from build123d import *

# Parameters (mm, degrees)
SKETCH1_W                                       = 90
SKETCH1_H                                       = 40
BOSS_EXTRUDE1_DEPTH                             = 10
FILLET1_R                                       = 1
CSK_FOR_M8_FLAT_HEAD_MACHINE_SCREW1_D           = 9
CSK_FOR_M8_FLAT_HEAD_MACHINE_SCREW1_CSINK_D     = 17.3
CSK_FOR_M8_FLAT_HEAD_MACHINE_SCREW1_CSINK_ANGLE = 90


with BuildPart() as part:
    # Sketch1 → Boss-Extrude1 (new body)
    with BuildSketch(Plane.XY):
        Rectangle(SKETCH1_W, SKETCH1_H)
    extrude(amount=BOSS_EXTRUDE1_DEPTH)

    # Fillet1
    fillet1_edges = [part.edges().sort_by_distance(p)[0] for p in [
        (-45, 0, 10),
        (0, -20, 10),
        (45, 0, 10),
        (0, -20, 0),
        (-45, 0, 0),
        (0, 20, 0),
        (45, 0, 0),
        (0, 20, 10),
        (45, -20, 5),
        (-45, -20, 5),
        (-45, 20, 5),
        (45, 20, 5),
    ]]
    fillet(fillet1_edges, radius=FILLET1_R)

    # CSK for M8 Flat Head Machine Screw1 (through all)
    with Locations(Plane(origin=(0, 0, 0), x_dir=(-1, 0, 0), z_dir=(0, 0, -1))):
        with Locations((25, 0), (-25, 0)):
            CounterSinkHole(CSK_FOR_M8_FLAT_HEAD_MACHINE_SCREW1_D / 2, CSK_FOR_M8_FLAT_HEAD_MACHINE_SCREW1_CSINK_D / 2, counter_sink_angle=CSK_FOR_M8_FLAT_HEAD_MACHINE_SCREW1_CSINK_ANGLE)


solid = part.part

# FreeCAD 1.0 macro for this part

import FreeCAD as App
import Part
import Sketcher

V = App.Vector
Q = App.Units.Quantity


def add_polygon(sketch, points):
    """Adds a closed chain of lines whose ends are joined by coincident constraints."""
    first, n = sketch.GeometryCount, len(points)
    for a, b in zip(points, points[1:] + points[:1]):
        sketch.addGeometry(Part.LineSegment(App.Vector(*a, 0), App.Vector(*b, 0)), False)
    for i in range(n):
        sketch.addConstraint(Sketcher.Constraint("Coincident", first + i, 2, first + (i + 1) % n, 1))

doc = App.newDocument("Part")
body = doc.addObject("PartDesign::Body", "Body")

sketch1 = body.newObject("Sketcher::SketchObject", "Sketch")
sketch1.AttachmentSupport = (doc.getObject("XY_Plane"), [""])
sketch1.MapMode = "FlatFace"
add_polygon(sketch1, [(-45, 20), (-45, -20), (45, -20), (45, 20)])
sketch1.addConstraint([
    Sketcher.Constraint("Vertical", 0),
    Sketcher.Constraint("Horizontal", 1),
    Sketcher.Constraint("Vertical", 2),
    Sketcher.Constraint("Horizontal", 3),
    Sketcher.Constraint("Symmetric", 0, 2, 2, 2, -1, 1),
    Sketcher.Constraint("DistanceX", 1, 1, 1, 2, Q("90 mm")),
    Sketcher.Constraint("DistanceY", 0, 2, 0, 1, Q("40 mm")),
])
pad1 = body.newObject("PartDesign::Pad", "Pad")
pad1.Profile = sketch1
pad1.Length = 10
doc.recompute()

fillet = body.newObject("PartDesign::Fillet", "Fillet")
fillet.Base = (pad1, ["Edge1"])
fillet.UseAllEdges = True
fillet.Radius = 1

sketch2 = body.newObject("Sketcher::SketchObject", "Sketch001")
sketch2.AttachmentSupport = (doc.getObject("XY_Plane"), [""])
sketch2.MapMode = "FlatFace"
sketch2.addGeometry([
    Part.Circle(V(-25, 0, 0), V(0, 0, 1), 4.5),
    Part.Circle(V(25, 0, 0), V(0, 0, 1), 4.5),
], False)
sketch2.addConstraint([
    Sketcher.Constraint("Equal", 0, 1),
    Sketcher.Constraint("Symmetric", 0, 3, 1, 3, -1, 1),
    Sketcher.Constraint("PointOnObject", 0, 3, -1),
    Sketcher.Constraint("Diameter", 0, Q("9 mm")),
    Sketcher.Constraint("DistanceX", 0, 3, -1, 1, Q("25 mm")),
])
doc.recompute()
hole = body.newObject("PartDesign::Hole", "Hole")
hole.Profile = sketch2
hole.ThreadType = "None"
hole.Diameter = 9
hole.DepthType = "ThroughAll"
hole.HoleCutType = "Countersink"
hole.HoleCutDiameter = 17.3
hole.HoleCutCountersinkAngle = 90
hole.Reversed = True

doc.recompute()
